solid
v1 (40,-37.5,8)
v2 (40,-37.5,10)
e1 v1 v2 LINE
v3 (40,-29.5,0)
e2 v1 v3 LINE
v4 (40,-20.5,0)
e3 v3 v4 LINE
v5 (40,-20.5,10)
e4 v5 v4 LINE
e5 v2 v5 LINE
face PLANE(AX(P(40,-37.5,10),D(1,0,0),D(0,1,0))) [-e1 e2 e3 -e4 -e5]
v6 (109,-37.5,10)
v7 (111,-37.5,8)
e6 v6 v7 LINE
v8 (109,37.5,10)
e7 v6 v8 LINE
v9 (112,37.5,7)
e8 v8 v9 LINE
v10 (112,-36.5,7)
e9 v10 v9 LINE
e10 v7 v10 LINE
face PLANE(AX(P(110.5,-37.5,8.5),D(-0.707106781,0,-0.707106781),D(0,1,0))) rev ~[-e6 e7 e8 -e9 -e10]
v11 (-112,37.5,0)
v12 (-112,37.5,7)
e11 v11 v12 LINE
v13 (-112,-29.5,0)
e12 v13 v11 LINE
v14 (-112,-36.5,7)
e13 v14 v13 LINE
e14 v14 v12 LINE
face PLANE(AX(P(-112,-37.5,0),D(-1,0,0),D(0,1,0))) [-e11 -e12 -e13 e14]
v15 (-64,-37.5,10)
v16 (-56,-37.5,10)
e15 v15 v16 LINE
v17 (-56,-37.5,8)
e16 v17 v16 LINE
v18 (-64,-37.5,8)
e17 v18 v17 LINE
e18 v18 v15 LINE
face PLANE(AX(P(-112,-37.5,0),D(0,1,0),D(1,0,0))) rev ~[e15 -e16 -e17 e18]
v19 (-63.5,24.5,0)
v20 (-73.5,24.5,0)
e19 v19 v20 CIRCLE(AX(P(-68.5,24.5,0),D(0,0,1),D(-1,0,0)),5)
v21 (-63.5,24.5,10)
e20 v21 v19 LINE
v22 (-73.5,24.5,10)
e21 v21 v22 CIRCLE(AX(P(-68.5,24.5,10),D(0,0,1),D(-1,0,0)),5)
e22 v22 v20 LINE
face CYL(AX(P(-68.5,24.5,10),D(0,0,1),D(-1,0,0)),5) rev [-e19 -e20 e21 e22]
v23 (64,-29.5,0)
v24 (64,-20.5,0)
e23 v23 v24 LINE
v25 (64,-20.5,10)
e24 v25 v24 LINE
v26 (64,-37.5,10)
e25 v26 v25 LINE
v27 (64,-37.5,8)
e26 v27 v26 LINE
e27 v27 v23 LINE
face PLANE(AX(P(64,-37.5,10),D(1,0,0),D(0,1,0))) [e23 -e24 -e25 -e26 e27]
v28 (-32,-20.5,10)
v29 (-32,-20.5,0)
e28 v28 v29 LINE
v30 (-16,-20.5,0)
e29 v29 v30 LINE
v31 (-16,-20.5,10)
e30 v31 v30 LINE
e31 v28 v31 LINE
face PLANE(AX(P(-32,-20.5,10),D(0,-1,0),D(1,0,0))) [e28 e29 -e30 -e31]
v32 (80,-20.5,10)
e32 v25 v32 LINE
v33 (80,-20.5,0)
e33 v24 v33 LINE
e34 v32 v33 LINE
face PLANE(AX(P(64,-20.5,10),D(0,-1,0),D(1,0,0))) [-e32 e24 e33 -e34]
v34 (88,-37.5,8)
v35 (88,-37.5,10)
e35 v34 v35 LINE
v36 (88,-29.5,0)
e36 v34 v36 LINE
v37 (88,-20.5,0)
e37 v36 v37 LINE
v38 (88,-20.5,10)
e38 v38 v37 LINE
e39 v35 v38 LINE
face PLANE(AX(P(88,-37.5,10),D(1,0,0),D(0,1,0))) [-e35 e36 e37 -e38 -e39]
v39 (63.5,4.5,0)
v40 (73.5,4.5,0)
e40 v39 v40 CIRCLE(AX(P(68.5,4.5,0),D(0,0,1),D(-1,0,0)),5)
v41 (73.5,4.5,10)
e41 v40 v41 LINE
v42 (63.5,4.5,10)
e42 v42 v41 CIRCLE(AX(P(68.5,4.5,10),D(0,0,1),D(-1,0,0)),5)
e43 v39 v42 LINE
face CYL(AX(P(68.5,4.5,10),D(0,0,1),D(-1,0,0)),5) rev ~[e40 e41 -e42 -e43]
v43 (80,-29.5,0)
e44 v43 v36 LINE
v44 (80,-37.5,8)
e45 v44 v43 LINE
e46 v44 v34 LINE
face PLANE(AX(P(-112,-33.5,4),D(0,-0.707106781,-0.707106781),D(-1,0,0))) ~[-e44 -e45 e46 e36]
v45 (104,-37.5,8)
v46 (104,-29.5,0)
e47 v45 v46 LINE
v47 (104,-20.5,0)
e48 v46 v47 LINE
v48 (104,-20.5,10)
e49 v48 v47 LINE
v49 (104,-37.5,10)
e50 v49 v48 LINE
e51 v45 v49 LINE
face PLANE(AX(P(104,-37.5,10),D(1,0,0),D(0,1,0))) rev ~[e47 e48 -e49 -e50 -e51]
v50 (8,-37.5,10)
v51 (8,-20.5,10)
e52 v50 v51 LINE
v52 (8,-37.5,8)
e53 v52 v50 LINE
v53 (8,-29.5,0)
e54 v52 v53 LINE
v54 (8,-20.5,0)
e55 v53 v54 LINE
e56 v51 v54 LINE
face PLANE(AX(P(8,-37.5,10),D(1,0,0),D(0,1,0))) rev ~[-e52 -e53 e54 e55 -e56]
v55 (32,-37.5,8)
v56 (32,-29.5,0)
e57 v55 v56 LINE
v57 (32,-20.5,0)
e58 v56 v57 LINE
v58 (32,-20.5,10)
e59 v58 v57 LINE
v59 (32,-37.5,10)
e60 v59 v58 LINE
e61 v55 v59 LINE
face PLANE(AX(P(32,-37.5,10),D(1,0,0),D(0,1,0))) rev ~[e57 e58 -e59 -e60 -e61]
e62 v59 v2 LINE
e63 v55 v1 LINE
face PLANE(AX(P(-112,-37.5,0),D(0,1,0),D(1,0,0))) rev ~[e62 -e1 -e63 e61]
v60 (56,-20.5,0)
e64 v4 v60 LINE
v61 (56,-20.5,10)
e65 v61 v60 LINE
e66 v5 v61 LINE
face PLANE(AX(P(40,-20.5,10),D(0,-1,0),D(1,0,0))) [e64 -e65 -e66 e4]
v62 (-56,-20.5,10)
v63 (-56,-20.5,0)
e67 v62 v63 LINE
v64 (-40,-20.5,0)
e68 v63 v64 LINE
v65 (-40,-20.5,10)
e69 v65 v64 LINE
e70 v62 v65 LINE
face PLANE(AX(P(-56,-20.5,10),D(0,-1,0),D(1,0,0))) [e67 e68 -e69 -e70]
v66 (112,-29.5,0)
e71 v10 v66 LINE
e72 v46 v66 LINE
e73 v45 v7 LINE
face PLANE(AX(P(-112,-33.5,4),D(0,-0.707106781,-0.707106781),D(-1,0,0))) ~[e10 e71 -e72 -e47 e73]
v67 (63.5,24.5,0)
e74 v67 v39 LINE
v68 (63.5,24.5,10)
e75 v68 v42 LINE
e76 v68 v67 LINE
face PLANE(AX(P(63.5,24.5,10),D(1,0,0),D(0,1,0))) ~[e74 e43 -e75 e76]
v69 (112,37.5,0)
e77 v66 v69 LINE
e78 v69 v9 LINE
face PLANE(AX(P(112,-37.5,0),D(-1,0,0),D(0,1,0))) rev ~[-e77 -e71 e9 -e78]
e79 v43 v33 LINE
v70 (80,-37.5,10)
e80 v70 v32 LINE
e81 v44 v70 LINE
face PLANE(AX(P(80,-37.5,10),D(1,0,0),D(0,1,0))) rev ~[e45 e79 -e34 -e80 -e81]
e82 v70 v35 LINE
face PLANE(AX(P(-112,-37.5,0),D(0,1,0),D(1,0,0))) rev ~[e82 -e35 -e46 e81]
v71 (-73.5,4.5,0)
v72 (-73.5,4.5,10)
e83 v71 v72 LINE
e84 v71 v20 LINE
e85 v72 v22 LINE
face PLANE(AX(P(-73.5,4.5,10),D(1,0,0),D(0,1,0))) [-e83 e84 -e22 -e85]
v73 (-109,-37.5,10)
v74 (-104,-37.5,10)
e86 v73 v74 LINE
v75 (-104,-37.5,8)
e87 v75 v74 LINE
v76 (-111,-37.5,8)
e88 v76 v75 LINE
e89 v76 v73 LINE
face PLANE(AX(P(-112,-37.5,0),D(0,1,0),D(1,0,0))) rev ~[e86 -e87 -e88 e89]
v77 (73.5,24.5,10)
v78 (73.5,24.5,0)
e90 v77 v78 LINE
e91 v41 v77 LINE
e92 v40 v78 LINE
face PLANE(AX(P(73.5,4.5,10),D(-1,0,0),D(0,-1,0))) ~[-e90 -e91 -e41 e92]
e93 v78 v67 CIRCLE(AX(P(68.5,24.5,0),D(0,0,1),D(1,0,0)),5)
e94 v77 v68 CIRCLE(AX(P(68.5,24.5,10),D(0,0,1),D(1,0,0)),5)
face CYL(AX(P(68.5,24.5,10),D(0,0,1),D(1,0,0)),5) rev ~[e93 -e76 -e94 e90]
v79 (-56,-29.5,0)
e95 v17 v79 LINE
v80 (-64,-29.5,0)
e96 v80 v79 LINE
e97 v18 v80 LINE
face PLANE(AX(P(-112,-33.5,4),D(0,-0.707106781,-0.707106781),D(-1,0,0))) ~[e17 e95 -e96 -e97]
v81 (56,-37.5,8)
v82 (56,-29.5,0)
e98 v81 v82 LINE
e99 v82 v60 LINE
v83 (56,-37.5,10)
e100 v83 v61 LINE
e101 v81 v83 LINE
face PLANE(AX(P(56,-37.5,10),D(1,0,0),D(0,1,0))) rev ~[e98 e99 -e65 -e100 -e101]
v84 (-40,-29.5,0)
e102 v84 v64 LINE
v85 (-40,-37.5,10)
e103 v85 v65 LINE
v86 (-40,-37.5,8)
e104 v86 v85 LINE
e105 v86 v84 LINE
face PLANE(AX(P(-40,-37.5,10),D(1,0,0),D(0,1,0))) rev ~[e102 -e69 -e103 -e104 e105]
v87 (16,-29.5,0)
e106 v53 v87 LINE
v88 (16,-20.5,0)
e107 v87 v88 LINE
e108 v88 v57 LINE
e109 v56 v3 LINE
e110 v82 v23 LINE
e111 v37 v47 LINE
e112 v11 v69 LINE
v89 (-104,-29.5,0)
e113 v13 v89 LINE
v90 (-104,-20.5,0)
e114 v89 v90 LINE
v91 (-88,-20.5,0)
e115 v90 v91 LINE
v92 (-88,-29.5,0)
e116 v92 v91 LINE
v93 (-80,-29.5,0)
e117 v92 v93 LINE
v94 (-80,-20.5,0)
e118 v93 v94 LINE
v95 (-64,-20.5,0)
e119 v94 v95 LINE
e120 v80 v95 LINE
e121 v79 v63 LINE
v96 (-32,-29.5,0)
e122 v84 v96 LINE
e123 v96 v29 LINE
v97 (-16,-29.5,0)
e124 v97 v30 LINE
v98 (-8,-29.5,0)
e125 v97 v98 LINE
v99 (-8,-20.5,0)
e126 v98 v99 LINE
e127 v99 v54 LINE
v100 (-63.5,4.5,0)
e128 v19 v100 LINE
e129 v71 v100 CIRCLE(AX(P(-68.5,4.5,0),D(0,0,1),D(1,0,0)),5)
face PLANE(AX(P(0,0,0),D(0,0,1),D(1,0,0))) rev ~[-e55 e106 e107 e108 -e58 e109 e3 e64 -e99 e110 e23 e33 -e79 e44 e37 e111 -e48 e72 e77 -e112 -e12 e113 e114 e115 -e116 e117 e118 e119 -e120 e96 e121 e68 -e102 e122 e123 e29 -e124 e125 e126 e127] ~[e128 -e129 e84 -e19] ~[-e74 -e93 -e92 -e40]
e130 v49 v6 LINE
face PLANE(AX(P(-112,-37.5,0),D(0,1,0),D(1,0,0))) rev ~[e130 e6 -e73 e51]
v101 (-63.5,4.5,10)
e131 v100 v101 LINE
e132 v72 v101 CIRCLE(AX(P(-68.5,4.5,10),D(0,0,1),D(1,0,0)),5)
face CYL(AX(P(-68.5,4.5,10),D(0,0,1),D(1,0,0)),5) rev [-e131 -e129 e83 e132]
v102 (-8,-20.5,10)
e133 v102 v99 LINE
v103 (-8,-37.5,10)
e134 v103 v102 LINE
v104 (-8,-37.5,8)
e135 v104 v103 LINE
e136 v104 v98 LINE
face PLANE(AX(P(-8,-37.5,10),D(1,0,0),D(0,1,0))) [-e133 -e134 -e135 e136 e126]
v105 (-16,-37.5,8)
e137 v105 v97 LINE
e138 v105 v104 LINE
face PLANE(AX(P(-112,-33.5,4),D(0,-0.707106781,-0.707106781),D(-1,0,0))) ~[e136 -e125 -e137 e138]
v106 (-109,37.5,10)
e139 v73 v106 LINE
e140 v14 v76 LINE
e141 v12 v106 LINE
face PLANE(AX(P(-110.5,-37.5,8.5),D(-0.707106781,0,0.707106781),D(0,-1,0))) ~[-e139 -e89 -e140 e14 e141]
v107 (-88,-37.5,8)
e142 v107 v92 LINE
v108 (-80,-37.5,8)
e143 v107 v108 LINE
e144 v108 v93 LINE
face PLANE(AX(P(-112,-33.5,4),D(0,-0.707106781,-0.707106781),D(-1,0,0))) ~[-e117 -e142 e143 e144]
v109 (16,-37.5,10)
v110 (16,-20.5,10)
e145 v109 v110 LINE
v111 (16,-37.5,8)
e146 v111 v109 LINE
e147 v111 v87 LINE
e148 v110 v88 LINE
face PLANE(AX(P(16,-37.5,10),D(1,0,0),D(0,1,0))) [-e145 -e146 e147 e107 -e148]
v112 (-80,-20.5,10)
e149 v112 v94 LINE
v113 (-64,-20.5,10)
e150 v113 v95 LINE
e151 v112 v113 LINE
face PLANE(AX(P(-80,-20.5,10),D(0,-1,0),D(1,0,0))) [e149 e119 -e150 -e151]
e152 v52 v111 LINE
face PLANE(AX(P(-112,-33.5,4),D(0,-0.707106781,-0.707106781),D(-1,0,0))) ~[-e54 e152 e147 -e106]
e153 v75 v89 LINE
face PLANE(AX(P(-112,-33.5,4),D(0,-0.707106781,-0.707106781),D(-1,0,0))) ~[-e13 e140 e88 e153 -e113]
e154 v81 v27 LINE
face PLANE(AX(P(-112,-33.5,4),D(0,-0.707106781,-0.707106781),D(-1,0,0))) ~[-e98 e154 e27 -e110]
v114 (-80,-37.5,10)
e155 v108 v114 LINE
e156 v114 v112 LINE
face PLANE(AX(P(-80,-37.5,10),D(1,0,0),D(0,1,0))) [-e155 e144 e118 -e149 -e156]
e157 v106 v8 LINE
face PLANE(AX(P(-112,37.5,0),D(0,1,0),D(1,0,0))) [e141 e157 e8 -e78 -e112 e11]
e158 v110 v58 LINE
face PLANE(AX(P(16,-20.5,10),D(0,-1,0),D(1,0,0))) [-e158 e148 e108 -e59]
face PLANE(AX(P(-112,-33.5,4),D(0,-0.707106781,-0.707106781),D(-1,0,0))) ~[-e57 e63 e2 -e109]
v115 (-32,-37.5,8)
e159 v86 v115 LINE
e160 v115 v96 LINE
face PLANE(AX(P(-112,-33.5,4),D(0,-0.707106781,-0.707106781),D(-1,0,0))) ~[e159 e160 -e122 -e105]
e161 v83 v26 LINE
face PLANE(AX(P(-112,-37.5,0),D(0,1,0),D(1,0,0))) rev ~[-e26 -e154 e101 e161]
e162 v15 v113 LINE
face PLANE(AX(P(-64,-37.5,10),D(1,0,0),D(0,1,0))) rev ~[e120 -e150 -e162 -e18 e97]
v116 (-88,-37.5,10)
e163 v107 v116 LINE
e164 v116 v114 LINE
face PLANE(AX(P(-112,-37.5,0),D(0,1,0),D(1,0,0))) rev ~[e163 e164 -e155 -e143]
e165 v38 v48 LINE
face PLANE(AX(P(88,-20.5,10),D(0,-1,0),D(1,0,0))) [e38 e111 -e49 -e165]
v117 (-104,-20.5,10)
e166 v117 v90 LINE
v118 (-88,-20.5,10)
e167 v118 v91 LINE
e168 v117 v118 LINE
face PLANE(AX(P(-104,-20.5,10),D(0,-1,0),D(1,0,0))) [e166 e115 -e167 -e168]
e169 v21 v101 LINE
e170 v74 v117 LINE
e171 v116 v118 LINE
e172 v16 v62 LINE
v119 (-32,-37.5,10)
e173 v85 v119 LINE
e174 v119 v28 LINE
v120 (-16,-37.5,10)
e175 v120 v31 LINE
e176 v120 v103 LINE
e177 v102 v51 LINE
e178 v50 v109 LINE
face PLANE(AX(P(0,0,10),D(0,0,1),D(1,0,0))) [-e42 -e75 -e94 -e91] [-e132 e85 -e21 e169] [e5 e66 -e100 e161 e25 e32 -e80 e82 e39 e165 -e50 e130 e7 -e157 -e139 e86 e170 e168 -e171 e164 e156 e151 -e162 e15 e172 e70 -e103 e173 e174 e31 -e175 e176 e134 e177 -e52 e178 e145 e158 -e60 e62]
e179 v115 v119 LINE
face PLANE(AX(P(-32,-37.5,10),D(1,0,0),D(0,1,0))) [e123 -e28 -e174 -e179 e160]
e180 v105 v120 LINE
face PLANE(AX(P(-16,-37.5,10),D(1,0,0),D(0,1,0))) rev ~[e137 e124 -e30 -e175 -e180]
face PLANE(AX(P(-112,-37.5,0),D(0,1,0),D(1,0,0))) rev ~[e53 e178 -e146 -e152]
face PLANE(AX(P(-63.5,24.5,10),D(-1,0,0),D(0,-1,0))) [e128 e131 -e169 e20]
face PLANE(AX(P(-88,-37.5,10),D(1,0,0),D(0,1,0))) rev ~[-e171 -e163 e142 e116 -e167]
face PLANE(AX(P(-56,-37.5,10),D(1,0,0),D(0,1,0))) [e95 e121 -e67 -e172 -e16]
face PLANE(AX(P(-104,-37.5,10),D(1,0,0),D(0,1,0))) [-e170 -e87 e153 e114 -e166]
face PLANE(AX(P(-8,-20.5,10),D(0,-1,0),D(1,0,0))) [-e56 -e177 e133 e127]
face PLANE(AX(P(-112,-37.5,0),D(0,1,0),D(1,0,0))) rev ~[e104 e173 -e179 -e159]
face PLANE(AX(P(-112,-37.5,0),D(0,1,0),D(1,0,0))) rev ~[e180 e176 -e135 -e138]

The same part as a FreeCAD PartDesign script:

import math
import FreeCAD as App
import Part
import Sketcher

V = App.Vector


def edges_at(feature, points):
    """Names of the edges that pass closest to the given points."""
    edges = feature.Shape.Edges
    near = lambda p: min(range(len(edges)), key=lambda i: edges[i].distToShape(Part.Vertex(*p))[0])
    return sorted({f"Edge{near(p) + 1}" for p in points})


def add_polygon(sketch, points):
    """Adds a closed chain of lines whose ends are joined by coincident constraints."""
    first, n = sketch.GeometryCount, len(points)
    for a, b in zip(points, points[1:] + points[:1]):
        sketch.addGeometry(Part.LineSegment(App.Vector(*a, 0), App.Vector(*b, 0)), False)
    for i in range(n):
        sketch.addConstraint(Sketcher.Constraint("Coincident", first + i, 2, first + (i + 1) % n, 1))

doc = App.newDocument("Part")
body = doc.addObject("PartDesign::Body", "Body")

# Sketch on XY plane
sketch1 = body.newObject("Sketcher::SketchObject", "Sketch")
sketch1.AttachmentSupport = (doc.getObject("XY_Plane"), [""])
sketch1.MapMode = "FlatFace"
add_polygon(sketch1, [(-112, 38), (-112, -38), (112, -38), (112, 38)])  # lines 0-3
sketch1.addConstraint([
    Sketcher.Constraint("Vertical", 0),
    Sketcher.Constraint("Horizontal", 1),
    Sketcher.Constraint("Vertical", 2),
    Sketcher.Constraint("Horizontal", 3),
    Sketcher.Constraint("Symmetric", 0, 2, 2, 2, -1, 1),
    Sketcher.Constraint("DistanceX", 1, 1, 1, 2, 224.0),
    Sketcher.Constraint("DistanceY", 0, 2, 0, 1, 75.0),
])
pad1 = body.newObject("PartDesign::Pad", "Pad")
pad1.Profile = sketch1
pad1.Length = 10

# Sketch on XY plane
sketch2 = body.newObject("Sketcher::SketchObject", "Sketch001")
sketch2.AttachmentSupport = (doc.getObject("XY_Plane"), [""])
sketch2.MapMode = "FlatFace"
sketch2.AttachmentOffset = App.Placement(V(0, 0, 10), App.Rotation())
sketch2.addGeometry([
    Part.LineSegment(V(-74, 24, 0), V(-74, 4, 0)),
    Part.ArcOfCircle(Part.Circle(V(-68, 4, 0), V(0, 0, 1), 5), math.radians(180), math.radians(360)),
    Part.LineSegment(V(-64, 4, 0), V(-64, 24, 0)),
    Part.ArcOfCircle(Part.Circle(V(-68, 24, 0), V(0, 0, 1), 5), math.radians(0), math.radians(180)),
], False)
sketch2.addConstraint([
    Sketcher.Constraint("Tangent", 0, 2, 1, 1),
    Sketcher.Constraint("Tangent", 1, 2, 2, 1),
    Sketcher.Constraint("Tangent", 2, 2, 3, 1),
    Sketcher.Constraint("Tangent", 3, 2, 0, 1),
    Sketcher.Constraint("Vertical", 0),
    Sketcher.Constraint("Vertical", 2),
    Sketcher.Constraint("Radius", 1, 5.0),
    Sketcher.Constraint("DistanceY", 0, 2, 0, 1, 20.0),
    Sketcher.Constraint("DistanceX", 1, 3, -1, 1, 68.5),
    Sketcher.Constraint("DistanceY", -1, 1, 1, 3, 4.5),
])
pocket1 = body.newObject("PartDesign::Pocket", "Pocket")
pocket1.Profile = sketch2
pocket1.Length = 239.067501
pocket1.Midplane = True
doc.recompute()

chamfer = body.newObject("PartDesign::Chamfer", "Chamfer")
chamfer.Base = (pocket1, edges_at(pocket1, [(0, -37.5, 0)]))
chamfer.Size = 8

# Sketch on XY plane
sketch3 = body.newObject("Sketcher::SketchObject", "Sketch002")
sketch3.AttachmentSupport = (doc.getObject("XY_Plane"), [""])
sketch3.MapMode = "FlatFace"
sketch3.AttachmentOffset = App.Placement(V(0, 0, 10), App.Rotation())
add_polygon(sketch3, [(-8, -20), (-8, -38), (8, -38), (8, -20)])  # lines 0-3
sketch3.addConstraint([
    Sketcher.Constraint("Vertical", 0),
    Sketcher.Constraint("Horizontal", 1),
    Sketcher.Constraint("Vertical", 2),
    Sketcher.Constraint("Horizontal", 3),
    Sketcher.Constraint("DistanceX", 1, 1, 1, 2, 16.0),
    Sketcher.Constraint("DistanceY", 0, 2, 0, 1, 17.0),
    Sketcher.Constraint("DistanceX", 0, 2, -1, 1, 8.0),
    Sketcher.Constraint("DistanceY", 0, 2, -1, 1, 37.5),
])
pocket2 = body.newObject("PartDesign::Pocket", "Pocket001")
pocket2.Profile = sketch3
pocket2.Length = 239.067501
pocket2.Midplane = True
doc.recompute()

chamfer2 = body.newObject("PartDesign::Chamfer", "Chamfer001")
chamfer2.Base = (pocket2, edges_at(pocket2, [(112, 0, 10), (-112, 0, 10)]))
chamfer2.Size = 3
doc.recompute()

linearpattern = body.newObject("PartDesign::LinearPattern", "LinearPattern")
linearpattern.Originals = [pocket2]
linearpattern.Direction = (doc.getObject("X_Axis"), [""])
linearpattern.Mode = "offset"
linearpattern.Offset = 24
linearpattern.Occurrences = 5
linearpattern.Reversed = True
body.Tip = linearpattern
doc.recompute()

linearpattern2 = body.newObject("PartDesign::LinearPattern", "LinearPattern001")
linearpattern2.Originals = [pocket2]
linearpattern2.Direction = (doc.getObject("X_Axis"), [""])
linearpattern2.Mode = "offset"
linearpattern2.Offset = 24
linearpattern2.Occurrences = 5
body.Tip = linearpattern2
doc.recompute()

mirrored = body.newObject("PartDesign::Mirrored", "Mirrored")
mirrored.Originals = [pocket1]
mirrored.MirrorPlane = (doc.getObject("YZ_Plane"), [""])
body.Tip = mirrored

doc.recompute()
